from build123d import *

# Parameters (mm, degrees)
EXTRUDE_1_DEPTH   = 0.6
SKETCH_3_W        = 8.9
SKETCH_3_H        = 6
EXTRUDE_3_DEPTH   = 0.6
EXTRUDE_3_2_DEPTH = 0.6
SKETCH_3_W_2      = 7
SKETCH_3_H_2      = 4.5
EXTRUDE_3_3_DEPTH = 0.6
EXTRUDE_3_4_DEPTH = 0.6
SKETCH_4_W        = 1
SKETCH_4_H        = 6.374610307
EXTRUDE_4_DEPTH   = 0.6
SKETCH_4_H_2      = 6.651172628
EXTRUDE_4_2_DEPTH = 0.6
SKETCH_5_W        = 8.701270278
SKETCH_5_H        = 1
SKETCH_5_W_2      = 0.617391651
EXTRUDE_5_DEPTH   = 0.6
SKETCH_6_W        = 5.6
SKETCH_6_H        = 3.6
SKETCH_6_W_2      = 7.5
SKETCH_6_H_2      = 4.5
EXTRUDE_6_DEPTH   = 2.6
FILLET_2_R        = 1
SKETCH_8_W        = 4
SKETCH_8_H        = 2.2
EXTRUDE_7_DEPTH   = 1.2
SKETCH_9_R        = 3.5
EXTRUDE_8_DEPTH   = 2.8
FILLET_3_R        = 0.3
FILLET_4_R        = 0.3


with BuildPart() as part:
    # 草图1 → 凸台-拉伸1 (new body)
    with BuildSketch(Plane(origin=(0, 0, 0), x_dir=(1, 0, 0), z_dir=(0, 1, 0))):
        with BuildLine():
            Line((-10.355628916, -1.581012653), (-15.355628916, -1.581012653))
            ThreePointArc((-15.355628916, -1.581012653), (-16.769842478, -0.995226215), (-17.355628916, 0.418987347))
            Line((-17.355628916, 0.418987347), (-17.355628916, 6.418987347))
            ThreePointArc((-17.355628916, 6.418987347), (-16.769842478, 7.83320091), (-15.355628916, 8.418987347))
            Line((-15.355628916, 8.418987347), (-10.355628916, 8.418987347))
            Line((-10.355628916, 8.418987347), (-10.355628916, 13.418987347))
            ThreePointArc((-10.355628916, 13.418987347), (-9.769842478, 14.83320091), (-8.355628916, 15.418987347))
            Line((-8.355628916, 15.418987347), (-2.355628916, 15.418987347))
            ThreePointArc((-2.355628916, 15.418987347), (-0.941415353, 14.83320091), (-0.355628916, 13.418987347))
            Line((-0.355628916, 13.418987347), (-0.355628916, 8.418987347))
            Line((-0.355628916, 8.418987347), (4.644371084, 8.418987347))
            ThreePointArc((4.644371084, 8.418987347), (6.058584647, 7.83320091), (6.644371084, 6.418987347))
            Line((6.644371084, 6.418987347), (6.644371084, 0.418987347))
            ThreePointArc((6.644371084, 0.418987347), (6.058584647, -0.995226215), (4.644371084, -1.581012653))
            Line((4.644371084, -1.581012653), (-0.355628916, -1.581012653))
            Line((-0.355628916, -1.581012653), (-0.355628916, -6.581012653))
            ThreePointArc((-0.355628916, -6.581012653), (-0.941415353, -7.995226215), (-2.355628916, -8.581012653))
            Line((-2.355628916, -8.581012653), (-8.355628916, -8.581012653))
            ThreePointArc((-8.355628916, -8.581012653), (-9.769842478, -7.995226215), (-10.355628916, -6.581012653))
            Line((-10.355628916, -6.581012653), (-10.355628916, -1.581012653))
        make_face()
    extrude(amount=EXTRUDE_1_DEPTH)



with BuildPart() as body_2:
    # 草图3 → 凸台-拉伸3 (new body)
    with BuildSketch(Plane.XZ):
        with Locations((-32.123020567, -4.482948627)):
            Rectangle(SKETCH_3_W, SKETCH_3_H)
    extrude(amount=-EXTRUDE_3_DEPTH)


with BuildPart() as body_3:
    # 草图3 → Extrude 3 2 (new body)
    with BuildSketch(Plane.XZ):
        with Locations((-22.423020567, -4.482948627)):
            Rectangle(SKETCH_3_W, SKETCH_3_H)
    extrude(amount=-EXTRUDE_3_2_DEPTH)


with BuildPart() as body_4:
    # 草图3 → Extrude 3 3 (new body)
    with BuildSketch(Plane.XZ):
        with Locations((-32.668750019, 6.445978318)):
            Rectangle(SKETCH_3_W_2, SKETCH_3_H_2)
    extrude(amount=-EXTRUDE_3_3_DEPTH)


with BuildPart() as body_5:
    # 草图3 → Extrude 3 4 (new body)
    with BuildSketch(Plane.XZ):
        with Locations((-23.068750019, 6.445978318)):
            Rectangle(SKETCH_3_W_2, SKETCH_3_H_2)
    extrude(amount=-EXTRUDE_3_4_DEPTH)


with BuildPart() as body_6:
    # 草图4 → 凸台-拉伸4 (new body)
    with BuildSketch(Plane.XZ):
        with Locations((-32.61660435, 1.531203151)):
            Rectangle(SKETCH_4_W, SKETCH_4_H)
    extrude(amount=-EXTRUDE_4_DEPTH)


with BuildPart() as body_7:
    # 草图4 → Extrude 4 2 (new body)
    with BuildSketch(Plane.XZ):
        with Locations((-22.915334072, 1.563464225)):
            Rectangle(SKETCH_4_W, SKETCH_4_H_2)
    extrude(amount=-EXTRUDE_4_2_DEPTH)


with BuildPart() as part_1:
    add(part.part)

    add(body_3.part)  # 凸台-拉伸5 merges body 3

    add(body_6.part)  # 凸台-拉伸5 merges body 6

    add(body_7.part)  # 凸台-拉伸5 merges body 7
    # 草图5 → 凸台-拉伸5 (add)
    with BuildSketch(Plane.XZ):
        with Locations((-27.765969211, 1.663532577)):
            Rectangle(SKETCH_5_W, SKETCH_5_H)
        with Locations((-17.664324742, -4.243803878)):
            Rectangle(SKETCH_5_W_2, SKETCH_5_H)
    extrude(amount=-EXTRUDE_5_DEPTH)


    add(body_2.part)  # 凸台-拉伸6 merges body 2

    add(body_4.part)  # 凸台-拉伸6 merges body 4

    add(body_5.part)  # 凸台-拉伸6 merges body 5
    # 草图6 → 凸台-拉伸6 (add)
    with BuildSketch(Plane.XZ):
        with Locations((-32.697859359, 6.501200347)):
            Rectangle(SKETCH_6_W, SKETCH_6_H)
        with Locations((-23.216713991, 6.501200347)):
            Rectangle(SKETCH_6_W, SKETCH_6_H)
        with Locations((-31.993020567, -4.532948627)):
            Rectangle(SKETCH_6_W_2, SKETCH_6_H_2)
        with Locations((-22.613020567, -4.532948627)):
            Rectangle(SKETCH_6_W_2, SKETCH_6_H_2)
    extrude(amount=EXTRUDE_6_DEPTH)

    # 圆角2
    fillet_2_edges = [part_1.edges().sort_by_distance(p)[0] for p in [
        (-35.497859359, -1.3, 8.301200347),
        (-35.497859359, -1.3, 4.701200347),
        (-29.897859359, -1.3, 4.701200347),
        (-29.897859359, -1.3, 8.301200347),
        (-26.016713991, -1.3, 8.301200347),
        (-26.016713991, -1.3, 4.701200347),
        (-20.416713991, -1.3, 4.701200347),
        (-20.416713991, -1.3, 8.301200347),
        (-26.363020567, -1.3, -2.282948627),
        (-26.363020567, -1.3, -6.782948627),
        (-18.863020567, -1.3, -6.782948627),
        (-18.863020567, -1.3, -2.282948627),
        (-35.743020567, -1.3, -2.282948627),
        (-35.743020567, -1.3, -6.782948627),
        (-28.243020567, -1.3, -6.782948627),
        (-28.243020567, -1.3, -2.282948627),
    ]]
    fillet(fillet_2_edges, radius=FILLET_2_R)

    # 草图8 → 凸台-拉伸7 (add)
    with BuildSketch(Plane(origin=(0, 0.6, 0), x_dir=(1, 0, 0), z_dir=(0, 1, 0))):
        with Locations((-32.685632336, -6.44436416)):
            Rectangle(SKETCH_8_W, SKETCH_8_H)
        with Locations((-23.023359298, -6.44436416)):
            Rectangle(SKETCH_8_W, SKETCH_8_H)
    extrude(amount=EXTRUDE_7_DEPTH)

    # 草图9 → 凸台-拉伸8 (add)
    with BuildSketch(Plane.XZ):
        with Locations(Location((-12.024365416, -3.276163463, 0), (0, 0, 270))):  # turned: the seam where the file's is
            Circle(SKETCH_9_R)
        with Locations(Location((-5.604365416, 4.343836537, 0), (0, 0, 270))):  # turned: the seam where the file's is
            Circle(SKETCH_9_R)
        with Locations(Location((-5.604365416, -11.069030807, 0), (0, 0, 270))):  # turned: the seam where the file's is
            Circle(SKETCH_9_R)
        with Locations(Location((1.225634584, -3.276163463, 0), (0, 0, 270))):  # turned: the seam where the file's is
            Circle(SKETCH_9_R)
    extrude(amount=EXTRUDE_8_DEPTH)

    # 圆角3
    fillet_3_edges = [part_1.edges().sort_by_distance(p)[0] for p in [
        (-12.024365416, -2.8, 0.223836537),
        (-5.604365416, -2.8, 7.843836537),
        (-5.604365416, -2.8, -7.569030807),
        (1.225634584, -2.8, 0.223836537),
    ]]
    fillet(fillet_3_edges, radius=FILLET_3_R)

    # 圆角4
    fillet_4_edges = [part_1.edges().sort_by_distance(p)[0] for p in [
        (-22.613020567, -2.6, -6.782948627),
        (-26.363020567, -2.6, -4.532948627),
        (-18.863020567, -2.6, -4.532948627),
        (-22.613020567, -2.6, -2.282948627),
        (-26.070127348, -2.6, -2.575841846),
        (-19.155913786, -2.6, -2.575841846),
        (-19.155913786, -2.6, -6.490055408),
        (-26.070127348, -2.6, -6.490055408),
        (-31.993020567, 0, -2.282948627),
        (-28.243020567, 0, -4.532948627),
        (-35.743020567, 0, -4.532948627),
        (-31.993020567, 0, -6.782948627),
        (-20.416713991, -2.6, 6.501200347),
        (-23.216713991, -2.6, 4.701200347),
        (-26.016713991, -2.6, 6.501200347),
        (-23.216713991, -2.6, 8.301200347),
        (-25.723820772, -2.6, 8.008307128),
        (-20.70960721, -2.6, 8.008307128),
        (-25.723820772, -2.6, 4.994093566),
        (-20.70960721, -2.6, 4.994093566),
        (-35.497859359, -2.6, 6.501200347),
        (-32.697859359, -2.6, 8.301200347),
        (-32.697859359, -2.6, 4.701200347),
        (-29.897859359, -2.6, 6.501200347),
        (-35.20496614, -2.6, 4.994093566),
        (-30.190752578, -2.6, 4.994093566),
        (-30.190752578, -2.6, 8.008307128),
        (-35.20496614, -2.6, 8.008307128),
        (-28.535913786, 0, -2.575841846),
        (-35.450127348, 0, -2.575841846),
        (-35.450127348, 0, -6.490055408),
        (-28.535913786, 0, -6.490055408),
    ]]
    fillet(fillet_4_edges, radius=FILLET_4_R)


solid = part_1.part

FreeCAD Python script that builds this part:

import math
import FreeCAD as App
import Part
import Sketcher
from FreeCAD import Vector


def edges_at(feature, points):
    """Names of the edges that pass closest to the given points."""
    edges = feature.Shape.Edges
    near = lambda p: min(range(len(edges)), key=lambda i: edges[i].distToShape(Part.Vertex(*p))[0])
    return sorted({f"Edge{near(p) + 1}" for p in points})


def add_polygon(sketch, points):
    """Adds a closed chain of lines whose ends are joined by coincident constraints."""
    first, n = sketch.GeometryCount, len(points)
    for a, b in zip(points, points[1:] + points[:1]):
        sketch.addGeometry(Part.LineSegment(App.Vector(*a, 0), App.Vector(*b, 0)), False)
    for i in range(n):
        sketch.addConstraint(Sketcher.Constraint("Coincident", first + i, 2, first + (i + 1) % n, 1))

doc = App.newDocument("Part")
body = doc.addObject("PartDesign::Body", "Body")

sketch1 = body.newObject("Sketcher::SketchObject", "Sketch")
sketch1.AttachmentSupport = (doc.getObject("XZ_Plane"), [""])
sketch1.MapMode = "FlatFace"
sketch1.addGeometry([
    Part.LineSegment(Vector(-15.4, 1.6, 0), Vector(-10.4, 1.6, 0)),
    Part.LineSegment(Vector(-10.4, 1.6, 0), Vector(-10.4, 6.6, 0)),
    Part.ArcOfCircle(Part.Circle(Vector(-8.4, 6.6, 0), Vector(0, 0, 1), 2), math.radians(90), math.radians(180)),
    Part.LineSegment(Vector(-8.4, 8.6, 0), Vector(-2.4, 8.6, 0)),
    Part.ArcOfCircle(Part.Circle(Vector(-2.4, 6.6, 0), Vector(0, 0, 1), 2), math.radians(0), math.radians(90)),
    Part.LineSegment(Vector(-0.4, 6.6, 0), Vector(-0.4, 1.6, 0)),
    Part.LineSegment(Vector(-0.4, 1.6, 0), Vector(4.6, 1.6, 0)),
    Part.ArcOfCircle(Part.Circle(Vector(4.6, -0.4, 0), Vector(0, 0, 1), 2), math.radians(0), math.radians(90)),
    Part.LineSegment(Vector(6.6, -0.4, 0), Vector(6.6, -6.4, 0)),
    Part.ArcOfCircle(Part.Circle(Vector(4.6, -6.4, 0), Vector(0, 0, 1), 2), math.radians(-90), math.radians(0)),
    Part.LineSegment(Vector(4.6, -8.4, 0), Vector(-0.4, -8.4, 0)),
    Part.LineSegment(Vector(-0.4, -8.4, 0), Vector(-0.4, -13.4, 0)),
    Part.ArcOfCircle(Part.Circle(Vector(-2.4, -13.4, 0), Vector(0, 0, 1), 2), math.radians(-90), math.radians(0)),
    Part.LineSegment(Vector(-2.4, -15.4, 0), Vector(-8.4, -15.4, 0)),
    Part.ArcOfCircle(Part.Circle(Vector(-8.4, -13.4, 0), Vector(0, 0, 1), 2), math.radians(180), math.radians(270)),
    Part.LineSegment(Vector(-10.4, -13.4, 0), Vector(-10.4, -8.4, 0)),
    Part.LineSegment(Vector(-10.4, -8.4, 0), Vector(-15.4, -8.4, 0)),
    Part.ArcOfCircle(Part.Circle(Vector(-15.4, -6.4, 0), Vector(0, 0, 1), 2), math.radians(180), math.radians(270)),
    Part.LineSegment(Vector(-17.4, -6.4, 0), Vector(-17.4, -0.4, 0)),
    Part.ArcOfCircle(Part.Circle(Vector(-15.4, -0.4, 0), Vector(0, 0, 1), 2), math.radians(90), math.radians(180)),
], False)
sketch1.addConstraint([
    Sketcher.Constraint("Coincident", 0, 2, 1, 1),
    Sketcher.Constraint("Tangent", 1, 2, 2, 2),
    Sketcher.Constraint("Tangent", 2, 1, 3, 1),
    Sketcher.Constraint("Tangent", 3, 2, 4, 2),
    Sketcher.Constraint("Tangent", 4, 1, 5, 1),
    Sketcher.Constraint("Coincident", 5, 2, 6, 1),
    Sketcher.Constraint("Tangent", 6, 2, 7, 2),
    Sketcher.Constraint("Tangent", 7, 1, 8, 1),
    Sketcher.Constraint("Tangent", 8, 2, 9, 2),
    Sketcher.Constraint("Tangent", 9, 1, 10, 1),
    Sketcher.Constraint("Coincident", 10, 2, 11, 1),
    Sketcher.Constraint("Tangent", 11, 2, 12, 2),
    Sketcher.Constraint("Tangent", 12, 1, 13, 1),
    Sketcher.Constraint("Tangent", 13, 2, 14, 2),
    Sketcher.Constraint("Tangent", 14, 1, 15, 1),
    Sketcher.Constraint("Coincident", 15, 2, 16, 1),
    Sketcher.Constraint("Tangent", 16, 2, 17, 2),
    Sketcher.Constraint("Tangent", 17, 1, 18, 1),
    Sketcher.Constraint("Tangent", 18, 2, 19, 2),
    Sketcher.Constraint("Tangent", 19, 1, 0, 1),
    Sketcher.Constraint("Horizontal", 0),
    Sketcher.Constraint("Vertical", 1),
    Sketcher.Constraint("Horizontal", 3),
    Sketcher.Constraint("Vertical", 5),
    Sketcher.Constraint("Horizontal", 6),
    Sketcher.Constraint("Vertical", 8),
    Sketcher.Constraint("Horizontal", 10),
    Sketcher.Constraint("Vertical", 11),
    Sketcher.Constraint("Horizontal", 13),
    Sketcher.Constraint("Vertical", 15),
    Sketcher.Constraint("Horizontal", 16),
    Sketcher.Constraint("Vertical", 18),
    Sketcher.Constraint("Equal", 2, 4),
    Sketcher.Constraint("Equal", 4, 7),
    Sketcher.Constraint("Equal", 7, 9),
    Sketcher.Constraint("Equal", 9, 12),
    Sketcher.Constraint("Equal", 12, 14),
    Sketcher.Constraint("Equal", 14, 17),
    Sketcher.Constraint("Equal", 17, 19),
    Sketcher.Constraint("Horizontal", 9, 3, 17, 3),
    Sketcher.Constraint("Horizontal", 7, 3, 19, 3),
    Sketcher.Constraint("Vertical", 4, 3, 12, 3),
    Sketcher.Constraint("Vertical", 2, 3, 14, 3),
    Sketcher.Constraint("Equal", 0, 6),
    Sketcher.Constraint("Equal", 16, 1),
    Sketcher.Constraint("Equal", 13, 8),
    Sketcher.Constraint("Equal", 5, 11),
    Sketcher.Constraint("Radius", 2, 2.0),
    Sketcher.Constraint("DistanceX", 0, 1, 0, 2, 5.0),
    Sketcher.Constraint("DistanceX", 3, 1, 3, 2, 6.0),
    Sketcher.Constraint("DistanceX", 2, 3, -1, 1, 8.355629),
    Sketcher.Constraint("DistanceY", -1, 1, 2, 3, 6.581013),
])
pad1 = body.newObject("PartDesign::Pad", "Pad")
pad1.Profile = sketch1
pad1.Length = 0.6
pad1.Reversed = True
body2 = doc.addObject("PartDesign::Body", "Body001")

sketch2 = body2.newObject("Sketcher::SketchObject", "Sketch001")
sketch2.AttachmentSupport = (doc.getObject("XZ_Plane001"), [""])
sketch2.MapMode = "FlatFace"
add_polygon(sketch2, [(-37, -1), (-37, -7), (-28, -7), (-28, -1)])
sketch2.addConstraint([
    Sketcher.Constraint("Vertical", 0),
    Sketcher.Constraint("Horizontal", 1),
    Sketcher.Constraint("Vertical", 2),
    Sketcher.Constraint("Horizontal", 3),
    Sketcher.Constraint("DistanceY", 0, 2, 0, 1, 6.0),
    Sketcher.Constraint("DistanceX", 1, 1, 1, 2, 8.9),
    Sketcher.Constraint("DistanceX", 0, 2, -1, 1, 36.573021),
    Sketcher.Constraint("DistanceY", 0, 2, -1, 1, 7.482949),
])
pad2 = body2.newObject("PartDesign::Pad", "Pad001")
pad2.Profile = sketch2
pad2.Length = 0.6
pad2.Reversed = True
body3 = doc.addObject("PartDesign::Body", "Body002")

sketch3 = body3.newObject("Sketcher::SketchObject", "Sketch002")
sketch3.AttachmentSupport = (doc.getObject("XZ_Plane002"), [""])
sketch3.MapMode = "FlatFace"
add_polygon(sketch3, [(-27, -1), (-27, -7), (-18, -7), (-18, -1)])
sketch3.addConstraint([
    Sketcher.Constraint("Vertical", 0),
    Sketcher.Constraint("Horizontal", 1),
    Sketcher.Constraint("Vertical", 2),
    Sketcher.Constraint("Horizontal", 3),
    Sketcher.Constraint("DistanceY", 0, 2, 0, 1, 6.0),
    Sketcher.Constraint("DistanceX", 1, 1, 1, 2, 8.9),
    Sketcher.Constraint("DistanceX", 0, 2, -1, 1, 26.873021),
    Sketcher.Constraint("DistanceY", 0, 2, -1, 1, 7.482949),
])
pad3 = body3.newObject("PartDesign::Pad", "Pad002")
pad3.Profile = sketch3
pad3.Length = 0.6
pad3.Reversed = True
body4 = doc.addObject("PartDesign::Body", "Body003")

sketch4 = body4.newObject("Sketcher::SketchObject", "Sketch003")
sketch4.AttachmentSupport = (doc.getObject("XZ_Plane003"), [""])
sketch4.MapMode = "FlatFace"
add_polygon(sketch4, [(-36.2, 8.7), (-36.2, 4.2), (-29.2, 4.2), (-29.2, 8.7)])
sketch4.addConstraint([
    Sketcher.Constraint("Vertical", 0),
    Sketcher.Constraint("Horizontal", 1),
    Sketcher.Constraint("Vertical", 2),
    Sketcher.Constraint("Horizontal", 3),
    Sketcher.Constraint("DistanceX", 1, 1, 1, 2, 7.0),
    Sketcher.Constraint("DistanceY", 0, 2, 0, 1, 4.5),
    Sketcher.Constraint("DistanceX", 0, 2, -1, 1, 36.16875),
    Sketcher.Constraint("DistanceY", -1, 1, 0, 2, 4.195978),
])
pad4 = body4.newObject("PartDesign::Pad", "Pad003")
pad4.Profile = sketch4
pad4.Length = 0.6
pad4.Reversed = True
body5 = doc.addObject("PartDesign::Body", "Body004")

sketch5 = body5.newObject("Sketcher::SketchObject", "Sketch004")
sketch5.AttachmentSupport = (doc.getObject("XZ_Plane004"), [""])
sketch5.MapMode = "FlatFace"
add_polygon(sketch5, [(-26.6, 8.7), (-26.6, 4.2), (-19.6, 4.2), (-19.6, 8.7)])
sketch5.addConstraint([
    Sketcher.Constraint("Vertical", 0),
    Sketcher.Constraint("Horizontal", 1),
    Sketcher.Constraint("Vertical", 2),
    Sketcher.Constraint("Horizontal", 3),
    Sketcher.Constraint("DistanceX", 1, 1, 1, 2, 7.0),
    Sketcher.Constraint("DistanceY", 0, 2, 0, 1, 4.5),
    Sketcher.Constraint("DistanceX", 0, 2, -1, 1, 26.56875),
    Sketcher.Constraint("DistanceY", -1, 1, 0, 2, 4.195978),
])
pad5 = body5.newObject("PartDesign::Pad", "Pad004")
pad5.Profile = sketch5
pad5.Length = 0.6
pad5.Reversed = True
body6 = doc.addObject("PartDesign::Body", "Body005")

sketch6 = body6.newObject("Sketcher::SketchObject", "Sketch005")
sketch6.AttachmentSupport = (doc.getObject("XZ_Plane005"), [""])
sketch6.MapMode = "FlatFace"
add_polygon(sketch6, [(-33.1, 4.7), (-33.1, -1.7), (-32.1, -1.7), (-32.1, 4.7)])
sketch6.addConstraint([
    Sketcher.Constraint("Vertical", 0),
    Sketcher.Constraint("Horizontal", 1),
    Sketcher.Constraint("Vertical", 2),
    Sketcher.Constraint("Horizontal", 3),
    Sketcher.Constraint("DistanceX", 1, 1, 1, 2, 1.0),
    Sketcher.Constraint("DistanceY", 0, 2, 0, 1, 6.37461),
    Sketcher.Constraint("DistanceY", -1, 1, 2, 2, 4.718508),
    Sketcher.Constraint("DistanceX", 0, 2, -1, 1, 33.116604),
])
pad6 = body6.newObject("PartDesign::Pad", "Pad005")
pad6.Profile = sketch6
pad6.Length = 0.6
pad6.Reversed = True
body7 = doc.addObject("PartDesign::Body", "Body006")

sketch7 = body7.newObject("Sketcher::SketchObject", "Sketch006")
sketch7.AttachmentSupport = (doc.getObject("XZ_Plane006"), [""])
sketch7.MapMode = "FlatFace"
add_polygon(sketch7, [(-23.4, 4.9), (-23.4, -1.8), (-22.4, -1.8), (-22.4, 4.9)])
sketch7.addConstraint([
    Sketcher.Constraint("Vertical", 0),
    Sketcher.Constraint("Horizontal", 1),
    Sketcher.Constraint("Vertical", 2),
    Sketcher.Constraint("Horizontal", 3),
    Sketcher.Constraint("DistanceX", 1, 1, 1, 2, 1.0),
    Sketcher.Constraint("DistanceY", 0, 2, 0, 1, 6.651173),
    Sketcher.Constraint("DistanceY", -1, 1, 2, 2, 4.889051),
    Sketcher.Constraint("DistanceX", 0, 2, -1, 1, 23.415334),
])
pad7 = body7.newObject("PartDesign::Pad", "Pad006")
pad7.Profile = sketch7
pad7.Length = 0.6
pad7.Reversed = True
body.AllowCompound = True
doc.recompute()

boolean = body.newObject("PartDesign::Boolean", "Boolean")
boolean.Type = "Fuse"
boolean.addObjects([body3])
doc.recompute()

boolean2 = body.newObject("PartDesign::Boolean", "Boolean001")
boolean2.Type = "Fuse"
boolean2.addObjects([body6])
doc.recompute()

boolean3 = body.newObject("PartDesign::Boolean", "Boolean002")
boolean3.Type = "Fuse"
boolean3.addObjects([body7])

sketch8 = body.newObject("Sketcher::SketchObject", "Sketch007")
sketch8.AttachmentSupport = (doc.getObject("XZ_Plane"), [""])
sketch8.MapMode = "FlatFace"
add_polygon(sketch8, [(-32.1, 2.2), (-32.1, 1.2), (-23.4, 1.2), (-23.4, 2.2)])
add_polygon(sketch8, [(-18, -3.7), (-18, -4.7), (-17.4, -4.7), (-17.4, -3.7)])
sketch8.addConstraint([
    Sketcher.Constraint("Vertical", 0),
    Sketcher.Constraint("Horizontal", 1),
    Sketcher.Constraint("Vertical", 2),
    Sketcher.Constraint("Horizontal", 3),
    Sketcher.Constraint("Vertical", 4),
    Sketcher.Constraint("Horizontal", 5),
    Sketcher.Constraint("Vertical", 6),
    Sketcher.Constraint("Horizontal", 7),
    Sketcher.Constraint("Equal", 2, 4),
    Sketcher.Constraint("DistanceY", 0, 2, 0, 1, 1.0),
    Sketcher.Constraint("DistanceX", 1, 1, 1, 2, 8.70127),
    Sketcher.Constraint("DistanceX", 5, 1, 5, 2, 0.617392),
    Sketcher.Constraint("DistanceX", 4, 2, -1, 1, 17.973021),
    Sketcher.Constraint("DistanceX", 0, 2, -1, 1, 32.116604),
    Sketcher.Constraint("DistanceY", -1, 1, 0, 2, 1.163533),
    Sketcher.Constraint("DistanceY", 4, 2, -1, 1, 4.743804),
])
pad8 = body.newObject("PartDesign::Pad", "Pad007")
pad8.Profile = sketch8
pad8.Length = 0.6
pad8.Reversed = True
doc.recompute()

boolean4 = body.newObject("PartDesign::Boolean", "Boolean003")
boolean4.Type = "Fuse"
boolean4.addObjects([body2])
doc.recompute()

boolean5 = body.newObject("PartDesign::Boolean", "Boolean004")
boolean5.Type = "Fuse"
boolean5.addObjects([body4])
doc.recompute()

boolean6 = body.newObject("PartDesign::Boolean", "Boolean005")
boolean6.Type = "Fuse"
boolean6.addObjects([body5])

sketch9 = body.newObject("Sketcher::SketchObject", "Sketch008")
sketch9.AttachmentSupport = (doc.getObject("XZ_Plane"), [""])
sketch9.MapMode = "FlatFace"
add_polygon(sketch9, [(-35.5, 8.3), (-35.5, 4.7), (-29.9, 4.7), (-29.9, 8.3)])
add_polygon(sketch9, [(-26, 8.3), (-26, 4.7), (-20.4, 4.7), (-20.4, 8.3)])
add_polygon(sketch9, [(-35.7, -2.3), (-35.7, -6.8), (-28.2, -6.8), (-28.2, -2.3)])
add_polygon(sketch9, [(-26.4, -2.3), (-26.4, -6.8), (-18.9, -6.8), (-18.9, -2.3)])
sketch9.addConstraint([
    Sketcher.Constraint("Vertical", 0),
    Sketcher.Constraint("Horizontal", 1),
    Sketcher.Constraint("Vertical", 2),
    Sketcher.Constraint("Horizontal", 3),
    Sketcher.Constraint("Vertical", 4),
    Sketcher.Constraint("Horizontal", 5),
    Sketcher.Constraint("Vertical", 6),
    Sketcher.Constraint("Horizontal", 7),
    Sketcher.Constraint("Vertical", 8),
    Sketcher.Constraint("Horizontal", 9),
    Sketcher.Constraint("Vertical", 10),
    Sketcher.Constraint("Horizontal", 11),
    Sketcher.Constraint("Vertical", 12),
    Sketcher.Constraint("Horizontal", 13),
    Sketcher.Constraint("Vertical", 14),
    Sketcher.Constraint("Horizontal", 15),
    Sketcher.Constraint("Horizontal", 1, 2, 4, 2),
    Sketcher.Constraint("Horizontal", 3, 2, 6, 2),
    Sketcher.Constraint("Horizontal", 9, 2, 12, 2),
    Sketcher.Constraint("Horizontal", 11, 2, 14, 2),
    Sketcher.Constraint("Equal", 3, 5),
    Sketcher.Constraint("Equal", 11, 13),
    Sketcher.Constraint("DistanceX", 1, 1, 1, 2, 5.6),
    Sketcher.Constraint("DistanceX", 9, 1, 9, 2, 7.5),
    Sketcher.Constraint("DistanceY", 0, 2, 0, 1, 3.6),
    Sketcher.Constraint("DistanceY", 8, 2, 8, 1, 4.5),
    Sketcher.Constraint("DistanceX", 9, 2, 12, 2, 1.88),
    Sketcher.Constraint("DistanceY", -1, 1, 0, 2, 4.7012),
    Sketcher.Constraint("DistanceX", 0, 2, -1, 1, 35.497859),
    Sketcher.Constraint("DistanceX", 8, 2, -1, 1, 35.743021),
    Sketcher.Constraint("DistanceY", 8, 2, -1, 1, 6.782949),
    Sketcher.Constraint("DistanceX", 4, 2, -1, 1, 26.016714),
])
pad9 = body.newObject("PartDesign::Pad", "Pad008")
pad9.Profile = sketch9
pad9.Length = 2.6
doc.recompute()

fillet = body.newObject("PartDesign::Fillet", "Fillet")
fillet.Base = (pad9, edges_at(pad9, [
    (-35.498, -1.3, 8.301),
    (-35.498, -1.3, 4.701),
    (-29.898, -1.3, 4.701),
    (-29.898, -1.3, 8.301),
    (-26.017, -1.3, 8.301),
    (-26.017, -1.3, 4.701),
    (-20.417, -1.3, 4.701),
    (-20.417, -1.3, 8.301),
    (-26.363, -1.3, -2.283),
    (-26.363, -1.3, -6.783),
    (-18.863, -1.3, -6.783),
    (-18.863, -1.3, -2.283),
    (-35.743, -1.3, -2.283),
    (-35.743, -1.3, -6.783),
    (-28.243, -1.3, -6.783),
    (-28.243, -1.3, -2.283),
]))
fillet.Radius = 1

sketch10 = body.newObject("Sketcher::SketchObject", "Sketch009")
sketch10.AttachmentSupport = (doc.getObject("XZ_Plane"), [""])
sketch10.MapMode = "FlatFace"
sketch10.AttachmentOffset = App.Placement(Vector(0, 0, -0.6), App.Rotation())
add_polygon(sketch10, [(-34.7, 5.3), (-34.7, 7.5), (-30.7, 7.5), (-30.7, 5.3)])
add_polygon(sketch10, [(-25, 5.3), (-25, 7.5), (-21, 7.5), (-21, 5.3)])
sketch10.addConstraint([
    Sketcher.Constraint("Vertical", 0),
    Sketcher.Constraint("Horizontal", 1),
    Sketcher.Constraint("Vertical", 2),
    Sketcher.Constraint("Horizontal", 3),
    Sketcher.Constraint("Vertical", 4),
    Sketcher.Constraint("Horizontal", 5),
    Sketcher.Constraint("Vertical", 6),
    Sketcher.Constraint("Horizontal", 7),
    Sketcher.Constraint("Horizontal", 1, 2, 4, 2),
    Sketcher.Constraint("Horizontal", 3, 2, 6, 2),
    Sketcher.Constraint("Equal", 3, 5),
    Sketcher.Constraint("DistanceX", 1, 1, 1, 2, 4.0),
    Sketcher.Constraint("DistanceY", 0, 1, 0, 2, 2.2),
    Sketcher.Constraint("DistanceX", 4, 2, -1, 1, 25.023359),
    Sketcher.Constraint("DistanceX", 0, 2, -1, 1, 34.685632),
    Sketcher.Constraint("DistanceY", -1, 1, 0, 2, 7.544364),
])
pad10 = body.newObject("PartDesign::Pad", "Pad009")
pad10.Profile = sketch10
pad10.Length = 1.2
pad10.Reversed = True

sketch11 = body.newObject("Sketcher::SketchObject", "Sketch010")
sketch11.AttachmentSupport = (doc.getObject("XZ_Plane"), [""])
sketch11.MapMode = "FlatFace"
sketch11.addGeometry([
    Part.Circle(Vector(-12, -3.3, 0), Vector(0, 0, 1), 3.5),
    Part.Circle(Vector(-5.6, 4.3, 0), Vector(0, 0, 1), 3.5),
    Part.Circle(Vector(-5.6, -11.1, 0), Vector(0, 0, 1), 3.5),
    Part.Circle(Vector(1.2, -3.3, 0), Vector(0, 0, 1), 3.5),
], False)
sketch11.addConstraint([
    Sketcher.Constraint("Equal", 0, 1),
    Sketcher.Constraint("Equal", 1, 2),
    Sketcher.Constraint("Equal", 2, 3),
    Sketcher.Constraint("Horizontal", 0, 3, 3, 3),
    Sketcher.Constraint("Vertical", 1, 3, 2, 3),
    Sketcher.Constraint("Diameter", 0, 7.0),
    Sketcher.Constraint("DistanceX", 0, 3, 1, 3, 6.42),
    Sketcher.Constraint("DistanceY", 0, 3, 1, 3, 7.62),
    Sketcher.Constraint("DistanceX", 1, 3, 3, 3, 6.83),
    Sketcher.Constraint("DistanceY", 2, 3, -1, 1, 11.069031),
    Sketcher.Constraint("DistanceX", 0, 3, -1, 1, 12.024365),
    Sketcher.Constraint("DistanceY", 0, 3, -1, 1, 3.276163),
])
pad11 = body.newObject("PartDesign::Pad", "Pad010")
pad11.Profile = sketch11
pad11.Length = 2.8
doc.recompute()

fillet2 = body.newObject("PartDesign::Fillet", "Fillet001")
fillet2.Base = (pad11, edges_at(pad11, [
    (-12.024, -2.8, 0.224),
    (-5.604, -2.8, 7.844),
    (-5.604, -2.8, -7.569),
    (1.226, -2.8, 0.224),
]))
fillet2.Radius = 0.3
doc.recompute()

fillet3 = body.newObject("PartDesign::Fillet", "Fillet002")
fillet3.Base = (fillet2, edges_at(fillet2, [
    (-22.613, -2.6, -6.783),
    (-26.363, -2.6, -4.533),
    (-18.863, -2.6, -4.533),
    (-22.613, -2.6, -2.283),
    (-26.07, -2.6, -2.576),
    (-19.156, -2.6, -2.576),
    (-19.156, -2.6, -6.49),
    (-26.07, -2.6, -6.49),
    (-31.993, 0, -2.283),
    (-28.243, 0, -4.533),
    (-35.743, 0, -4.533),
    (-31.993, 0, -6.783),
    (-20.417, -2.6, 6.501),
    (-23.217, -2.6, 4.701),
    (-26.017, -2.6, 6.501),
    (-23.217, -2.6, 8.301),
    (-25.724, -2.6, 8.008),
    (-20.71, -2.6, 8.008),
    (-25.724, -2.6, 4.994),
    (-20.71, -2.6, 4.994),
    (-35.498, -2.6, 6.501),
    (-32.698, -2.6, 8.301),
    (-32.698, -2.6, 4.701),
    (-29.898, -2.6, 6.501),
    (-35.205, -2.6, 4.994),
    (-30.191, -2.6, 4.994),
    (-30.191, -2.6, 8.008),
    (-35.205, -2.6, 8.008),
    (-28.536, 0, -2.576),
    (-35.45, 0, -2.576),
    (-35.45, 0, -6.49),
    (-28.536, 0, -6.49),
]))
fillet3.Radius = 0.3

doc.recompute()
